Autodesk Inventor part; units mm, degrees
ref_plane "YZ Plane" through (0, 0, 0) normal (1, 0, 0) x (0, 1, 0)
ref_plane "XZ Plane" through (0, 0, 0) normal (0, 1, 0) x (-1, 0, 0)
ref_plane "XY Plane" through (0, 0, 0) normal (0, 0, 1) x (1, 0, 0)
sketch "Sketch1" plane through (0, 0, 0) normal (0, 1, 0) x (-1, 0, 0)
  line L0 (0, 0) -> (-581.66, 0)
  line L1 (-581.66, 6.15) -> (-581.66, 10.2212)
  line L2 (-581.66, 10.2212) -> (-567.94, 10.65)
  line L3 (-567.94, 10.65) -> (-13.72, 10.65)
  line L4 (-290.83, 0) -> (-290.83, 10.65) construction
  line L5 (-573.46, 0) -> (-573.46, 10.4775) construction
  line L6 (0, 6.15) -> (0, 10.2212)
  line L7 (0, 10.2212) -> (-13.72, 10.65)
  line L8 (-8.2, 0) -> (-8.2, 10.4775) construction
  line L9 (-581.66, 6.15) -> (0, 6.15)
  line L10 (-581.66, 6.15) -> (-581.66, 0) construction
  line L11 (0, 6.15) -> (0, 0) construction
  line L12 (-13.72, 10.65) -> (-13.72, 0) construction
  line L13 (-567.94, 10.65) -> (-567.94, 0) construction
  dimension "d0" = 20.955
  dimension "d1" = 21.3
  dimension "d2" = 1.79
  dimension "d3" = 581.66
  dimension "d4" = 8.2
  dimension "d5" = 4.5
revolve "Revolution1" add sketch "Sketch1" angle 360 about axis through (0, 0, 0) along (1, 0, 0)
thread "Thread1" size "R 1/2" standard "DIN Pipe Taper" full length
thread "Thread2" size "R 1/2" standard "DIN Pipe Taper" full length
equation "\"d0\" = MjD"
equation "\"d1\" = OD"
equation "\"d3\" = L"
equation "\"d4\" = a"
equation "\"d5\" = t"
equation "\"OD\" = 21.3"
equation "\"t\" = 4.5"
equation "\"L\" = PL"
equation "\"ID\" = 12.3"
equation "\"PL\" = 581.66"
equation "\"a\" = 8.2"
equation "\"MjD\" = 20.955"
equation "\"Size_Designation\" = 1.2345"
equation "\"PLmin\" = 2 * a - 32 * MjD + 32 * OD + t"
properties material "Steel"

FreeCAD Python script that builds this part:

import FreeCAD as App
import Part
import Sketcher
Q = App.Units.Quantity

doc = App.newDocument("Part")
body = doc.addObject("PartDesign::Body", "Body")

sketch1 = doc.addObject("Sketcher::SketchObject", "Sketch")
body.addObject(sketch1)
sketch1.AttachmentSupport = (doc.XZ_Plane, [""])
sketch1.MapMode = "FlatFace"
sketch1.addGeometry(Part.LineSegment(App.Vector(581.7, 10.2, 0), App.Vector(581.7, 6.2, 0)), False)
sketch1.addGeometry(Part.LineSegment(App.Vector(581.7, 6.2, 0), App.Vector(0, 6.2, 0)), False)
sketch1.addGeometry(Part.LineSegment(App.Vector(0, 6.2, 0), App.Vector(0, 10.2, 0)), False)
sketch1.addGeometry(Part.LineSegment(App.Vector(0, 10.2, 0), App.Vector(13.7, 10.7, 0)), False)
sketch1.addGeometry(Part.LineSegment(App.Vector(13.7, 10.7, 0), App.Vector(567.9, 10.7, 0)), False)
sketch1.addGeometry(Part.LineSegment(App.Vector(567.9, 10.7, 0), App.Vector(581.7, 10.2, 0)), False)
sketch1.addConstraint(Sketcher.Constraint("Coincident", 0, 2, 1, 1))
sketch1.addConstraint(Sketcher.Constraint("Coincident", 1, 2, 2, 1))
sketch1.addConstraint(Sketcher.Constraint("Coincident", 2, 2, 3, 1))
sketch1.addConstraint(Sketcher.Constraint("Coincident", 3, 2, 4, 1))
sketch1.addConstraint(Sketcher.Constraint("Coincident", 4, 2, 5, 1))
sketch1.addConstraint(Sketcher.Constraint("Coincident", 5, 2, 0, 1))
sketch1.addConstraint(Sketcher.Constraint("Vertical", 0))
sketch1.addConstraint(Sketcher.Constraint("Horizontal", 1))
sketch1.addConstraint(Sketcher.Constraint("Vertical", 2))
sketch1.addConstraint(Sketcher.Constraint("Horizontal", 4))
sketch1.addConstraint(Sketcher.Constraint("PointOnObject", 1, 2, -2))
sketch1.addConstraint(Sketcher.Constraint("Horizontal", 2, 2, 5, 2))
sketch1.addConstraint(Sketcher.Constraint("Equal", 3, 5))
sketch1.addConstraint(Sketcher.Constraint("DistanceX", 1, 2, 1, 1, Q("22.9 in")))
sketch1.addConstraint(Sketcher.Constraint("Angle", 3, Q("1.79 deg")))
sketch1.addConstraint(Sketcher.Constraint("DistanceY", 1, 2, 3, 2, 4.5))
sketch1.addConstraint(Sketcher.Constraint("DistanceX", 4, 1, 4, 2, 554.22))
sketch1.addConstraint(Sketcher.Constraint("DistanceY", -1, 1, 2, 2, Q("0.4024 in")))
revolution = doc.addObject("PartDesign::Revolution", "Revolution")
body.addObject(revolution)
revolution.Profile = sketch1
revolution.ReferenceAxis = (sketch1, ["H_Axis"])
revolution.Angle = 360

doc.recompute()
